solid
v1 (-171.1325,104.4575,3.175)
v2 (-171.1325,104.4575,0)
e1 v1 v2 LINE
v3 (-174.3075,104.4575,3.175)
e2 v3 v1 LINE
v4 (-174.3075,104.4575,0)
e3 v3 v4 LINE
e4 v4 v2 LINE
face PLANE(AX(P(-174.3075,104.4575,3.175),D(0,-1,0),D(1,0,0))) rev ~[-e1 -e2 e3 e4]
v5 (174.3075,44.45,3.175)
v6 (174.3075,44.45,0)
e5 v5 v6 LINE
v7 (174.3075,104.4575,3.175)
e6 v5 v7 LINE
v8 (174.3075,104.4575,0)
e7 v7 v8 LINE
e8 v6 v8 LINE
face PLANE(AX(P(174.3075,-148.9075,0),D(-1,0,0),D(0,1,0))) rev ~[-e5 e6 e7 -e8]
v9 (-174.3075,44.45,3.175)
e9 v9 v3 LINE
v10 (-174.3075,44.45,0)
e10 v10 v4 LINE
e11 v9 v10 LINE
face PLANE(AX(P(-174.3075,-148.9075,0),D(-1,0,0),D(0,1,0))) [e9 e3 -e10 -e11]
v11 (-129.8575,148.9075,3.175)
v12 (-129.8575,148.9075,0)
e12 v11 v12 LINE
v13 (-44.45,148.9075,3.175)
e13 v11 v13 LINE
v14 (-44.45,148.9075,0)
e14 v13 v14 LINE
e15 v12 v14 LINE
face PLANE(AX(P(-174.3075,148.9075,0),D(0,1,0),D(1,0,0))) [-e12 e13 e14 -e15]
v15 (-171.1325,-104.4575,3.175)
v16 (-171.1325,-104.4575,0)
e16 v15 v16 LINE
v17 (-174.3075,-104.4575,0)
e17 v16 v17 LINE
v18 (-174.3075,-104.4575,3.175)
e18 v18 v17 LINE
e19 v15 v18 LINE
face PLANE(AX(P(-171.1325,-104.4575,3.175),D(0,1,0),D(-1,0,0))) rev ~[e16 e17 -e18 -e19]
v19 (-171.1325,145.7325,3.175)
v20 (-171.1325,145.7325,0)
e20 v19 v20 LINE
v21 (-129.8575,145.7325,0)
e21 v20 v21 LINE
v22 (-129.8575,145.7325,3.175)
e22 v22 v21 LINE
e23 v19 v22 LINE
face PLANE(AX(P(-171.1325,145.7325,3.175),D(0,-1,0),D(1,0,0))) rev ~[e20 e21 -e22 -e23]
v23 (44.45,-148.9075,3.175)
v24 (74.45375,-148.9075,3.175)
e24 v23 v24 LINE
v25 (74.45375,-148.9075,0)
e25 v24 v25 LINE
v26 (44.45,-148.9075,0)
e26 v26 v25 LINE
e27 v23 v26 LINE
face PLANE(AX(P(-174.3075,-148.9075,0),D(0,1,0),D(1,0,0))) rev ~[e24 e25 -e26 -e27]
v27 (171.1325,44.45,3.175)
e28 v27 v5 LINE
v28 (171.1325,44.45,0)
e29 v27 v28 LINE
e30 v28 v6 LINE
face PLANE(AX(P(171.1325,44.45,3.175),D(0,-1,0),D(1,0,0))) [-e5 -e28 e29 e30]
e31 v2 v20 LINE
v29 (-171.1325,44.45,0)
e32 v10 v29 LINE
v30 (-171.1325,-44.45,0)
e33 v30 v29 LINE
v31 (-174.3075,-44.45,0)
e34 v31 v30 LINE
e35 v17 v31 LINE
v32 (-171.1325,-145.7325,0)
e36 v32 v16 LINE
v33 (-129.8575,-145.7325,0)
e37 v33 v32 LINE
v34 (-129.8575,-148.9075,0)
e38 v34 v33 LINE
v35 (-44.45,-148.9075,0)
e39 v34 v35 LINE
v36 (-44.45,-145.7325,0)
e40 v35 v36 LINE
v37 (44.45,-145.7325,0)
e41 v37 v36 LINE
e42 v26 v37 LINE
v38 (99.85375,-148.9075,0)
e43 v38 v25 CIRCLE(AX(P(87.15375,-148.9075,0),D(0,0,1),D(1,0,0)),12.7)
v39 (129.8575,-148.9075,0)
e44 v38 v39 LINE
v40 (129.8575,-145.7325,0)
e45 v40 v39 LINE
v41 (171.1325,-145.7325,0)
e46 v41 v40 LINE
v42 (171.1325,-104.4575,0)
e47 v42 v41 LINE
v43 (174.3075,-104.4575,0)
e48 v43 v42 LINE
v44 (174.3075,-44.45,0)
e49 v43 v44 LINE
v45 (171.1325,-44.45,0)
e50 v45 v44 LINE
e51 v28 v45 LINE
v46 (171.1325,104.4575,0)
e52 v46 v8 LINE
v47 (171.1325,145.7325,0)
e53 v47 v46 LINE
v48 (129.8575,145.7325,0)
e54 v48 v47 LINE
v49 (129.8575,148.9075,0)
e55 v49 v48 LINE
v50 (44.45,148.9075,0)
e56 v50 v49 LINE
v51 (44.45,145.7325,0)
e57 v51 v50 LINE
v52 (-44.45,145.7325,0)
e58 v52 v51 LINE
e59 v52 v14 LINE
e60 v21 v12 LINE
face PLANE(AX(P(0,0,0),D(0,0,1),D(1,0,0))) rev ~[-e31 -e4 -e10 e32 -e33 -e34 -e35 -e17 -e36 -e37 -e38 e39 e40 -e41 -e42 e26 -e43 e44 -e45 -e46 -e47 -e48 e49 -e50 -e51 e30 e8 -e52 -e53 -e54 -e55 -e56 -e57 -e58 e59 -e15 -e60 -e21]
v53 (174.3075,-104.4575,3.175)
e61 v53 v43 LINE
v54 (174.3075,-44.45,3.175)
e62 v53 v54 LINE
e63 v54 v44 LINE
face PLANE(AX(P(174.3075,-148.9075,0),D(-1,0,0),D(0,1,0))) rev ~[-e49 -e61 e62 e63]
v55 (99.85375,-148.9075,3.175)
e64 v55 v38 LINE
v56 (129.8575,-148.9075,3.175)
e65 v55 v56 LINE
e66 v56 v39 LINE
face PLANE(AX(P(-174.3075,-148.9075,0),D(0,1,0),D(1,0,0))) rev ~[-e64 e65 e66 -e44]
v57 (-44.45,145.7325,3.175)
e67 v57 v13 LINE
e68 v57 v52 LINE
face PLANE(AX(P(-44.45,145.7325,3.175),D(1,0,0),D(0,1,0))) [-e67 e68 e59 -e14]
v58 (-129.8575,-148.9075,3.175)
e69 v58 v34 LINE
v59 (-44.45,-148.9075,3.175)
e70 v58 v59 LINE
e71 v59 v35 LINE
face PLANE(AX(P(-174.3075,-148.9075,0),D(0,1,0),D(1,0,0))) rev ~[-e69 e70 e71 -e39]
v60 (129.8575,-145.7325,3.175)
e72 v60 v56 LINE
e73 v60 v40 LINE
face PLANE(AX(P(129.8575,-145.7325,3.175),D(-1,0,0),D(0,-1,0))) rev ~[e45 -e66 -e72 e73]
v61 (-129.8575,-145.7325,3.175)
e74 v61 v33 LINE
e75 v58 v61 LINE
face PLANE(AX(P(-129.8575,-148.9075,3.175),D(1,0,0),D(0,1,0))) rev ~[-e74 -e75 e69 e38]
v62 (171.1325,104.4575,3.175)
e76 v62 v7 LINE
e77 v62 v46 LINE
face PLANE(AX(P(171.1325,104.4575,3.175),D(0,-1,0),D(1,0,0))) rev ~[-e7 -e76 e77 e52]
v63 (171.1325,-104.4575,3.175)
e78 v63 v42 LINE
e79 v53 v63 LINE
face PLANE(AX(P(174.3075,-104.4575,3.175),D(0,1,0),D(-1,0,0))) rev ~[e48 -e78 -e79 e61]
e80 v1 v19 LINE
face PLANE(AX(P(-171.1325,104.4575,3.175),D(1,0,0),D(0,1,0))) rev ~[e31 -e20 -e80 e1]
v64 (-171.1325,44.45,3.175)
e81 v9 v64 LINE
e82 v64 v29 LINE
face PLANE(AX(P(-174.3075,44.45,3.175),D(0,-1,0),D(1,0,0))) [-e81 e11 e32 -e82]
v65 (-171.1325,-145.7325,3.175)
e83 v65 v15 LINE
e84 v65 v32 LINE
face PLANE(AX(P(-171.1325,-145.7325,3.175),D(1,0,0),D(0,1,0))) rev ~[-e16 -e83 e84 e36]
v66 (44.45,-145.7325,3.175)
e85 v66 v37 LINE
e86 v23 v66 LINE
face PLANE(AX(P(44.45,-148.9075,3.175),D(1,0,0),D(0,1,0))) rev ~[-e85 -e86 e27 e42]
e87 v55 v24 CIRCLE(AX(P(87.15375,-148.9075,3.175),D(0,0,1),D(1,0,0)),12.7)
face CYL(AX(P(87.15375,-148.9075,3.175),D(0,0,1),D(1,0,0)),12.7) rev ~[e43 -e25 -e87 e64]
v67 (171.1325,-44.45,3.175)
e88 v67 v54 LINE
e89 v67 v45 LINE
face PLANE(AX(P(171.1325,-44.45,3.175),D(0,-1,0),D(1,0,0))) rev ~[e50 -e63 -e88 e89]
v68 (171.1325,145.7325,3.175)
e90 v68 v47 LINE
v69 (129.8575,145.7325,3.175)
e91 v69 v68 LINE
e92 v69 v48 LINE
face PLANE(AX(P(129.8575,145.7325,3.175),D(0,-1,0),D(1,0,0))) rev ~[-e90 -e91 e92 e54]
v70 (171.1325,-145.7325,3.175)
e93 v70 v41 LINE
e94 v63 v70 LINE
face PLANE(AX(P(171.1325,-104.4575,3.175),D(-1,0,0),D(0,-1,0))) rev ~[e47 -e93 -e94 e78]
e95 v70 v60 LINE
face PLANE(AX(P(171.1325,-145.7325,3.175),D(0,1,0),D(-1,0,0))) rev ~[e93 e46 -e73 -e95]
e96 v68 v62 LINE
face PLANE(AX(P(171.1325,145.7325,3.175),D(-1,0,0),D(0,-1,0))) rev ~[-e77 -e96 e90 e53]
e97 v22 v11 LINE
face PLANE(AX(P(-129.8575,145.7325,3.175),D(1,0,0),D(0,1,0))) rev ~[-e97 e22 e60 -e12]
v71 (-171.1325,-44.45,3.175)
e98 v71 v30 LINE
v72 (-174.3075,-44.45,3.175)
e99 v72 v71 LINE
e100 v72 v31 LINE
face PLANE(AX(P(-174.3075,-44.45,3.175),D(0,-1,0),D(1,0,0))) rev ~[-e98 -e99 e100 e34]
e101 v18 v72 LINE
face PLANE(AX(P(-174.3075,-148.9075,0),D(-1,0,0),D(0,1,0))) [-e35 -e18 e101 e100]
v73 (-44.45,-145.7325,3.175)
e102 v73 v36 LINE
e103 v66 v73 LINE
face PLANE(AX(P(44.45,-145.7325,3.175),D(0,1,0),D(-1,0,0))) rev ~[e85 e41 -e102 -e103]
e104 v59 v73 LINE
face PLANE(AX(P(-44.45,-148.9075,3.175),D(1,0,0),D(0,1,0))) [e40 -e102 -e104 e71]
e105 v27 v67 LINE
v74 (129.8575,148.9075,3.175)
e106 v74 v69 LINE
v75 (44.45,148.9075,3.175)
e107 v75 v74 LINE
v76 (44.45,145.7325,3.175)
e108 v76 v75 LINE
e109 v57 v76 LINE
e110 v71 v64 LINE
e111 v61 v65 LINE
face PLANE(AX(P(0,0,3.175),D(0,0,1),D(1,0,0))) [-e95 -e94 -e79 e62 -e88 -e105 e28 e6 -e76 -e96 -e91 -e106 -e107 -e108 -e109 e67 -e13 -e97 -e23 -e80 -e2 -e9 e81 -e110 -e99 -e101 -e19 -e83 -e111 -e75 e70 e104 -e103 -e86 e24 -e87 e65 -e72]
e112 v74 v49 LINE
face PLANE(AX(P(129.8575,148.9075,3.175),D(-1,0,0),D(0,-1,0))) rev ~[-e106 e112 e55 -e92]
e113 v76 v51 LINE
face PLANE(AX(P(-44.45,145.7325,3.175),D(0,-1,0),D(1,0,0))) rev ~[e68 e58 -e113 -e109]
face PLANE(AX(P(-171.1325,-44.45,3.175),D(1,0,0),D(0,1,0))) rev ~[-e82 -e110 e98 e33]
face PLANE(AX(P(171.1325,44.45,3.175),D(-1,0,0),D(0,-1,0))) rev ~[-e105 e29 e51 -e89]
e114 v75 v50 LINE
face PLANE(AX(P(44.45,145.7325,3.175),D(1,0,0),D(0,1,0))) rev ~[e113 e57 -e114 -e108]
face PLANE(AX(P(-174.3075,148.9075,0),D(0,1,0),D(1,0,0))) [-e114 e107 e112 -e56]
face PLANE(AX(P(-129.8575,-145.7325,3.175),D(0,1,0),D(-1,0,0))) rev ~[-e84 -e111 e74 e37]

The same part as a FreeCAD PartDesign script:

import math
import FreeCAD as App
import Part
import Sketcher
from FreeCAD import Vector
Q = App.Units.Quantity

doc = App.newDocument("Part")
body = doc.addObject("PartDesign::Body", "Body")

# Sketch on XY plane
sketch1 = body.newObject("Sketcher::SketchObject", "Sketch")
sketch1.AttachmentSupport = (doc.getObject("XY_Plane"), [""])
sketch1.MapMode = "FlatFace"
sketch1.addGeometry([
    Part.LineSegment(Vector(-174, 149, 0), Vector(-174, -149, 0)),
    Part.LineSegment(Vector(-174, -149, 0), Vector(174, -149, 0)),
    Part.LineSegment(Vector(174, -149, 0), Vector(174, 149, 0)),
    Part.LineSegment(Vector(174, 149, 0), Vector(-174, 149, 0)),
], False)
sketch1.addConstraint([
    Sketcher.Constraint("Coincident", 0, 2, 1, 1),
    Sketcher.Constraint("Coincident", 1, 2, 2, 1),
    Sketcher.Constraint("Coincident", 2, 2, 3, 1),
    Sketcher.Constraint("Coincident", 3, 2, 0, 1),
    Sketcher.Constraint("Vertical", 0),
    Sketcher.Constraint("Horizontal", 1),
    Sketcher.Constraint("Vertical", 2),
    Sketcher.Constraint("Horizontal", 3),
    Sketcher.Constraint("Symmetric", 0, 2, 2, 2, -1, 1),
    Sketcher.Constraint("DistanceX", 1, 1, 1, 2, Q("13.725 in")),
    Sketcher.Constraint("DistanceY", 0, 2, 0, 1, Q("11.725 in")),
])
pad1 = body.newObject("PartDesign::Pad", "Pad")
pad1.Profile = sketch1
pad1.Length = Q("0.125 in")

# Sketch on XY plane
sketch2 = body.newObject("Sketcher::SketchObject", "Sketch001")
sketch2.AttachmentSupport = (doc.getObject("XY_Plane"), [""])
sketch2.MapMode = "FlatFace"
sketch2.AttachmentOffset = App.Placement(Vector(0, 0, 0.125 * 25.4), App.Rotation())
sketch2.addGeometry([
    Part.LineSegment(Vector(-129.9, 145.7, 0), Vector(-129.9, 148.9, 0)),  # 0
    Part.LineSegment(Vector(-129.9, 148.9, 0), Vector(-174.3, 148.9, 0)),  # 1
    Part.LineSegment(Vector(-174.3, 148.9, 0), Vector(-174.3, 104.5, 0)),  # 2
    Part.LineSegment(Vector(-174.3, 104.5, 0), Vector(-171.1, 104.5, 0)),  # 3
    Part.LineSegment(Vector(-171.1, 104.5, 0), Vector(-171.1, 145.7, 0)),  # 4
    Part.LineSegment(Vector(-171.1, 145.7, 0), Vector(-129.9, 145.7, 0)),  # 5
    Part.LineSegment(Vector(-44.5, 148.9, 0), Vector(-44.5, 145.7, 0)),  # 6
    Part.LineSegment(Vector(-44.5, 145.7, 0), Vector(44.5, 145.7, 0)),  # 7
    Part.LineSegment(Vector(44.5, 145.7, 0), Vector(44.5, 148.9, 0)),  # 8
    Part.LineSegment(Vector(44.5, 148.9, 0), Vector(-44.5, 148.9, 0)),  # 9
    Part.LineSegment(Vector(-174.3, 44.5, 0), Vector(-174.3, -44.5, 0)),  # 10
    Part.LineSegment(Vector(-174.3, -44.5, 0), Vector(-171.1, -44.5, 0)),  # 11
    Part.LineSegment(Vector(-171.1, -44.5, 0), Vector(-171.1, 44.5, 0)),  # 12
    Part.LineSegment(Vector(-171.1, 44.5, 0), Vector(-174.3, 44.5, 0)),  # 13
    Part.LineSegment(Vector(171.1, -44.5, 0), Vector(174.3, -44.5, 0)),  # 14
    Part.LineSegment(Vector(174.3, -44.5, 0), Vector(174.3, 44.5, 0)),  # 15
    Part.LineSegment(Vector(174.3, 44.5, 0), Vector(171.1, 44.5, 0)),  # 16
    Part.LineSegment(Vector(171.1, 44.5, 0), Vector(171.1, -44.5, 0)),  # 17
    Part.LineSegment(Vector(171.1, 145.7, 0), Vector(171.1, 104.5, 0)),  # 18
    Part.LineSegment(Vector(171.1, 104.5, 0), Vector(174.3, 104.5, 0)),  # 19
    Part.LineSegment(Vector(174.3, 104.5, 0), Vector(174.3, 148.9, 0)),  # 20
    Part.LineSegment(Vector(174.3, 148.9, 0), Vector(129.9, 148.9, 0)),  # 21
    Part.LineSegment(Vector(129.9, 148.9, 0), Vector(129.9, 145.7, 0)),  # 22
    Part.LineSegment(Vector(129.9, 145.7, 0), Vector(171.1, 145.7, 0)),  # 23
    Part.LineSegment(Vector(-44.5, -145.7, 0), Vector(-44.5, -148.9, 0)),  # 24
    Part.LineSegment(Vector(-44.5, -148.9, 0), Vector(44.5, -148.9, 0)),  # 25
    Part.LineSegment(Vector(44.5, -148.9, 0), Vector(44.5, -145.7, 0)),  # 26
    Part.LineSegment(Vector(44.5, -145.7, 0), Vector(-44.5, -145.7, 0)),  # 27
    Part.LineSegment(Vector(-171.1, -145.7, 0), Vector(-171.1, -104.5, 0)),  # 28
    Part.LineSegment(Vector(-171.1, -104.5, 0), Vector(-174.3, -104.5, 0)),  # 29
    Part.LineSegment(Vector(-174.3, -104.5, 0), Vector(-174.3, -148.9, 0)),  # 30
    Part.LineSegment(Vector(-174.3, -148.9, 0), Vector(-129.9, -148.9, 0)),  # 31
    Part.LineSegment(Vector(-129.9, -148.9, 0), Vector(-129.9, -145.7, 0)),  # 32
    Part.LineSegment(Vector(-129.9, -145.7, 0), Vector(-171.1, -145.7, 0)),  # 33
    Part.LineSegment(Vector(129.9, -145.7, 0), Vector(129.9, -148.9, 0)),  # 34
    Part.LineSegment(Vector(129.9, -148.9, 0), Vector(174.3, -148.9, 0)),  # 35
    Part.LineSegment(Vector(174.3, -148.9, 0), Vector(174.3, -104.5, 0)),  # 36
    Part.LineSegment(Vector(174.3, -104.5, 0), Vector(171.1, -104.5, 0)),  # 37
    Part.LineSegment(Vector(171.1, -104.5, 0), Vector(171.1, -145.7, 0)),  # 38
    Part.LineSegment(Vector(171.1, -145.7, 0), Vector(129.9, -145.7, 0)),  # 39
], False)
sketch2.addConstraint([
    Sketcher.Constraint("Coincident", 0, 2, 1, 1),
    Sketcher.Constraint("Coincident", 1, 2, 2, 1),
    Sketcher.Constraint("Coincident", 2, 2, 3, 1),
    Sketcher.Constraint("Coincident", 3, 2, 4, 1),
    Sketcher.Constraint("Coincident", 4, 2, 5, 1),
    Sketcher.Constraint("Coincident", 5, 2, 0, 1),
    Sketcher.Constraint("Coincident", 6, 2, 7, 1),
    Sketcher.Constraint("Coincident", 7, 2, 8, 1),
    Sketcher.Constraint("Coincident", 8, 2, 9, 1),
    Sketcher.Constraint("Coincident", 9, 2, 6, 1),
    Sketcher.Constraint("Coincident", 10, 2, 11, 1),
    Sketcher.Constraint("Coincident", 11, 2, 12, 1),
    Sketcher.Constraint("Coincident", 12, 2, 13, 1),
    Sketcher.Constraint("Coincident", 13, 2, 10, 1),
    Sketcher.Constraint("Coincident", 14, 2, 15, 1),
    Sketcher.Constraint("Coincident", 15, 2, 16, 1),
    Sketcher.Constraint("Coincident", 16, 2, 17, 1),
    Sketcher.Constraint("Coincident", 17, 2, 14, 1),
    Sketcher.Constraint("Coincident", 18, 2, 19, 1),
    Sketcher.Constraint("Coincident", 19, 2, 20, 1),
    Sketcher.Constraint("Coincident", 20, 2, 21, 1),
    Sketcher.Constraint("Coincident", 21, 2, 22, 1),
    Sketcher.Constraint("Coincident", 22, 2, 23, 1),
    Sketcher.Constraint("Coincident", 23, 2, 18, 1),
    Sketcher.Constraint("Coincident", 24, 2, 25, 1),
    Sketcher.Constraint("Coincident", 25, 2, 26, 1),
    Sketcher.Constraint("Coincident", 26, 2, 27, 1),
    Sketcher.Constraint("Coincident", 27, 2, 24, 1),
    Sketcher.Constraint("Coincident", 28, 2, 29, 1),
    Sketcher.Constraint("Coincident", 29, 2, 30, 1),
    Sketcher.Constraint("Coincident", 30, 2, 31, 1),
    Sketcher.Constraint("Coincident", 31, 2, 32, 1),
    Sketcher.Constraint("Coincident", 32, 2, 33, 1),
    Sketcher.Constraint("Coincident", 33, 2, 28, 1),
    Sketcher.Constraint("Coincident", 34, 2, 35, 1),
    Sketcher.Constraint("Coincident", 35, 2, 36, 1),
    Sketcher.Constraint("Coincident", 36, 2, 37, 1),
    Sketcher.Constraint("Coincident", 37, 2, 38, 1),
    Sketcher.Constraint("Coincident", 38, 2, 39, 1),
    Sketcher.Constraint("Coincident", 39, 2, 34, 1),
    Sketcher.Constraint("Vertical", 0),
    Sketcher.Constraint("Horizontal", 1),
    Sketcher.Constraint("Vertical", 2),
    Sketcher.Constraint("Horizontal", 3),
    Sketcher.Constraint("Vertical", 4),
    Sketcher.Constraint("Horizontal", 5),
    Sketcher.Constraint("Vertical", 6),
    Sketcher.Constraint("Horizontal", 7),
    Sketcher.Constraint("Vertical", 8),
    Sketcher.Constraint("Horizontal", 9),
    Sketcher.Constraint("Vertical", 10),
    Sketcher.Constraint("Horizontal", 11),
    Sketcher.Constraint("Vertical", 12),
    Sketcher.Constraint("Horizontal", 13),
    Sketcher.Constraint("Horizontal", 14),
    Sketcher.Constraint("Vertical", 15),
    Sketcher.Constraint("Horizontal", 16),
    Sketcher.Constraint("Vertical", 17),
    Sketcher.Constraint("Vertical", 18),
    Sketcher.Constraint("Horizontal", 19),
    Sketcher.Constraint("Vertical", 20),
    Sketcher.Constraint("Horizontal", 21),
    Sketcher.Constraint("Vertical", 22),
    Sketcher.Constraint("Horizontal", 23),
    Sketcher.Constraint("Vertical", 24),
    Sketcher.Constraint("Horizontal", 25),
    Sketcher.Constraint("Vertical", 26),
    Sketcher.Constraint("Horizontal", 27),
    Sketcher.Constraint("Vertical", 28),
    Sketcher.Constraint("Horizontal", 29),
    Sketcher.Constraint("Vertical", 30),
    Sketcher.Constraint("Horizontal", 31),
    Sketcher.Constraint("Vertical", 32),
    Sketcher.Constraint("Horizontal", 33),
    Sketcher.Constraint("Vertical", 34),
    Sketcher.Constraint("Horizontal", 35),
    Sketcher.Constraint("Vertical", 36),
    Sketcher.Constraint("Horizontal", 37),
    Sketcher.Constraint("Vertical", 38),
    Sketcher.Constraint("Horizontal", 39),
    Sketcher.Constraint("Symmetric", 13, 2, 14, 2, -1, 1),
    Sketcher.Constraint("Symmetric", 11, 2, 16, 2, -1, 1),
    Sketcher.Constraint("Symmetric", 8, 2, 24, 2, -1, 1),
    Sketcher.Constraint("Symmetric", 6, 2, 26, 2, -1, 1),
    Sketcher.Constraint("Symmetric", 18, 2, 28, 2, -1, 1),
    Sketcher.Constraint("Symmetric", 20, 2, 30, 2, -1, 1),
    Sketcher.Constraint("Symmetric", 22, 2, 32, 2, -1, 1),
    Sketcher.Constraint("Symmetric", 0, 2, 34, 2, -1, 1),
    Sketcher.Constraint("Symmetric", 2, 2, 36, 2, -1, 1),
    Sketcher.Constraint("Symmetric", 4, 2, 38, 2, -1, 1),
    Sketcher.Constraint("Symmetric", 3, 2, 18, 2, -2),
    Sketcher.Constraint("Symmetric", 1, 2, 20, 2, -2),
    Sketcher.Constraint("Symmetric", 5, 2, 22, 2, -2),
    Sketcher.Constraint("Horizontal", 5, 2, 6, 2),
    Sketcher.Constraint("Horizontal", 1, 2, 8, 2),
    Sketcher.Constraint("Horizontal", 11, 2, 14, 2),
    Sketcher.Constraint("Vertical", 2, 2, 10, 2),
    Sketcher.Constraint("Vertical", 4, 2, 11, 2),
    Sketcher.Constraint("Vertical", 9, 2, 24, 2),
    Sketcher.Constraint("Equal", 37, 0),
    Sketcher.Constraint("Equal", 35, 2),
    Sketcher.Constraint("Equal", 27, 10),
    Sketcher.Constraint("DistanceX", 7, 1, 7, 2, Q("3.5 in")),
    Sketcher.Constraint("DistanceX", 1, 2, 1, 1, Q("1.75 in")),
    Sketcher.Constraint("DistanceX", 11, 2, 14, 2, Q("13.6 in")),
    Sketcher.Constraint("DistanceX", 3, 1, 3, 2, Q("0.125 in")),
    Sketcher.Constraint("DistanceY", -1, 1, 0, 2, Q("5.8625 in")),
])
pocket1 = body.newObject("PartDesign::Pocket", "Pocket")
pocket1.Profile = sketch2
pocket1.Type = "ThroughAll"

# Sketch on XY plane
sketch3 = body.newObject("Sketcher::SketchObject", "Sketch002")
sketch3.AttachmentSupport = (doc.getObject("XY_Plane"), [""])
sketch3.MapMode = "FlatFace"
sketch3.AttachmentOffset = App.Placement(Vector(0, 0, 0.125 * 25.4), App.Rotation())
sketch3.addGeometry([
    Part.LineSegment(Vector(74, -149, 0), Vector(100, -149, 0)),
    Part.ArcOfCircle(Part.Circle(Vector(87, -149, 0), Vector(0, 0, 1), 13), math.radians(0), math.radians(180)),
], False)
sketch3.addConstraint([
    Sketcher.Constraint("Coincident", 0, 1, 1, 2),
    Sketcher.Constraint("Coincident", 1, 1, 0, 2),
    Sketcher.Constraint("Horizontal", 0),
    Sketcher.Constraint("Horizontal", 1, 3, 0, 1),
    Sketcher.Constraint("Radius", 1, Q("0.5 in")),
    Sketcher.Constraint("DistanceY", 1, 3, -1, 1, Q("5.8625 in")),
    Sketcher.Constraint("DistanceX", -1, 1, 1, 3, Q("87.15375 mm")),
])
pocket2 = body.newObject("PartDesign::Pocket", "Pocket001")
pocket2.Profile = sketch3
pocket2.Type = "ThroughAll"

doc.recompute()
